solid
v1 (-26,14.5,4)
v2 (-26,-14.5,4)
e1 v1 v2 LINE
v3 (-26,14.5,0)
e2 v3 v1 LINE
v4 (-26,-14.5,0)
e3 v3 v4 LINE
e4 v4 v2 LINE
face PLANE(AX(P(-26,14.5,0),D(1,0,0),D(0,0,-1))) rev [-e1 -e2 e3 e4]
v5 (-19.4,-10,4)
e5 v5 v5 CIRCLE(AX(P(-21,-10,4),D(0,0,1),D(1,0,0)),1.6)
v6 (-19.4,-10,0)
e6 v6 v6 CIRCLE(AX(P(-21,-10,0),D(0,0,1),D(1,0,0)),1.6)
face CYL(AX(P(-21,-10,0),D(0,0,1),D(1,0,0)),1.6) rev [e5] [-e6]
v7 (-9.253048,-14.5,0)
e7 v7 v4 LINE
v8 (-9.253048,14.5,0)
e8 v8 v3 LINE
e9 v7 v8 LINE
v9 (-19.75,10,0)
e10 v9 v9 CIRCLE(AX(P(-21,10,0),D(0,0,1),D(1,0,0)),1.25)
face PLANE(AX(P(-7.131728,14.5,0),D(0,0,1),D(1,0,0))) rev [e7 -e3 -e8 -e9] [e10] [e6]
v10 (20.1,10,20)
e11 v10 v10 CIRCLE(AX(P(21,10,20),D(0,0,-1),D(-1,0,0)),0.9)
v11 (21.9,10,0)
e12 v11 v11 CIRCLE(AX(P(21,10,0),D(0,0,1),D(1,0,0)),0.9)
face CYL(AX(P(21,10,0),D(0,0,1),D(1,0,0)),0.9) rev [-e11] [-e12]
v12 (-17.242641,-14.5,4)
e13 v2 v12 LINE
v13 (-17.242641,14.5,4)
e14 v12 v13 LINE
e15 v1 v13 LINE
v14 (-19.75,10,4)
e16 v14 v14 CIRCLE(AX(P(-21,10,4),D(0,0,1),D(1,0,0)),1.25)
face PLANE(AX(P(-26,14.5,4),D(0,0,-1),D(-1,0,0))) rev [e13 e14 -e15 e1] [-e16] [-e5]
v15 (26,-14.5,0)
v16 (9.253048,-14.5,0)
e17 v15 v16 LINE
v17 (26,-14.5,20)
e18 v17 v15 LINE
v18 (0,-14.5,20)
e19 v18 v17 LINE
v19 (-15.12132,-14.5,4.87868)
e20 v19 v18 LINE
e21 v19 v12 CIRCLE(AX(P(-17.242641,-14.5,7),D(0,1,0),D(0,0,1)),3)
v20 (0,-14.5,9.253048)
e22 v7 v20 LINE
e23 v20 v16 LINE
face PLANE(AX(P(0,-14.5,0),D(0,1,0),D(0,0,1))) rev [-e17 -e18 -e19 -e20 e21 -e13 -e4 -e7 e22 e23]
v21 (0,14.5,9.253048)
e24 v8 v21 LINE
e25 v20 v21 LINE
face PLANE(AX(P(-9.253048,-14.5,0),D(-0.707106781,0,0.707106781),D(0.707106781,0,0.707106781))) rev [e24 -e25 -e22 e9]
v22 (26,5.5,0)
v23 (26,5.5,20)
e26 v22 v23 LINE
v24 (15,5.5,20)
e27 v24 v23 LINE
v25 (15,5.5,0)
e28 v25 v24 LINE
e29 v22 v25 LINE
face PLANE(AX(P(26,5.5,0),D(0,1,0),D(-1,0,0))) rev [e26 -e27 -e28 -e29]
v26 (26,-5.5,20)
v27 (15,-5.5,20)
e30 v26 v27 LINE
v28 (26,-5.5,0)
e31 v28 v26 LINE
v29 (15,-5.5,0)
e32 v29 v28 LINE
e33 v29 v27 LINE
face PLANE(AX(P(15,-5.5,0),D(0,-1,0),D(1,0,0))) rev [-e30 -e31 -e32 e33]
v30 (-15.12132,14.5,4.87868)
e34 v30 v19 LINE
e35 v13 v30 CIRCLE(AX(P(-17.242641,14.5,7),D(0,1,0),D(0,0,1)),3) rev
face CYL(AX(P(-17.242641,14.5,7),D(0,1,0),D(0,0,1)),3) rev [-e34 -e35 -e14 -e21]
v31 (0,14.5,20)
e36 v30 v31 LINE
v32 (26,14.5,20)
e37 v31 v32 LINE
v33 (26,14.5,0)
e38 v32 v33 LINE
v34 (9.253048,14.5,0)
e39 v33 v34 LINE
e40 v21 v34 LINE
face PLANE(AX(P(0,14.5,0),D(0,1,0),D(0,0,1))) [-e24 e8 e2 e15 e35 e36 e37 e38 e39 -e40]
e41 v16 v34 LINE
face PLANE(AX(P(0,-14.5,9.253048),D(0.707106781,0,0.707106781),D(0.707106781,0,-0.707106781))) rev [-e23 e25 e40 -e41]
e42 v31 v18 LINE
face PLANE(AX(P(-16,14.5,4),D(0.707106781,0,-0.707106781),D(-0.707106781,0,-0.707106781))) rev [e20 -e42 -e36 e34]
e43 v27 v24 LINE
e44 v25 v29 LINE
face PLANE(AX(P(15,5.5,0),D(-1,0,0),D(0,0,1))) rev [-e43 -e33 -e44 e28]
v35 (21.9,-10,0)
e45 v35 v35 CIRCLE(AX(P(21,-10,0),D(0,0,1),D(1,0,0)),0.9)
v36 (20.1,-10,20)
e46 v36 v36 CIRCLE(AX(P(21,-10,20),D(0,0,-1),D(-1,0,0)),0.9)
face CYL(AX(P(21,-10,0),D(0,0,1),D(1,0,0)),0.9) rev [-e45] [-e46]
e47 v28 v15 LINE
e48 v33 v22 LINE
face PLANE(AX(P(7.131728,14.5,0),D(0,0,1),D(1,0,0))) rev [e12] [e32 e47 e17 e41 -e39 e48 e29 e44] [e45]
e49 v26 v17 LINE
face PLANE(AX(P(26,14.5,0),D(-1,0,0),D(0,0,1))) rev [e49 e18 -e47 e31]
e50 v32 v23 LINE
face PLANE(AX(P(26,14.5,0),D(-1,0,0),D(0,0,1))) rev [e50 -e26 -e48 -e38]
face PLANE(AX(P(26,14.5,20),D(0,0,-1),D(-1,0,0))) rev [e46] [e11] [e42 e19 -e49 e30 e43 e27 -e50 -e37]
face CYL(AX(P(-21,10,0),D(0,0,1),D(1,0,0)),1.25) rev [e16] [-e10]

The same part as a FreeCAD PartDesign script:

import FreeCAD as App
import Part
import Sketcher
from FreeCAD import Vector
Q = App.Units.Quantity


def edges_at(feature, points):
    """Names of the edges that pass closest to the given points."""
    edges = feature.Shape.Edges
    near = lambda p: min(range(len(edges)), key=lambda i: edges[i].distToShape(Part.Vertex(*p))[0])
    return sorted({f"Edge{near(p) + 1}" for p in points})


def add_polygon(sketch, points):
    """Adds a closed chain of lines whose ends are joined by coincident constraints."""
    first, n = sketch.GeometryCount, len(points)
    for a, b in zip(points, points[1:] + points[:1]):
        sketch.addGeometry(Part.LineSegment(App.Vector(*a, 0), App.Vector(*b, 0)), False)
    for i in range(n):
        sketch.addConstraint(Sketcher.Constraint("Coincident", first + i, 2, first + (i + 1) % n, 1))

doc = App.newDocument("Part")
body = doc.addObject("PartDesign::Body", "Body")

sketch1 = body.newObject("Sketcher::SketchObject", "Sketch")
sketch1.AttachmentSupport = (doc.getObject("XZ_Plane"), [""])
sketch1.MapMode = "FlatFace"
add_polygon(sketch1, [(-7.131728, 0), (-26, 0), (-26, 4), (-16, 4), (0, 20), (26, 20), (26, 0), (7.131728, 0), (0, 7.131728)])
sketch1.addConstraint(Sketcher.Constraint("Horizontal", 0))
sketch1.addConstraint(Sketcher.Constraint("Vertical", 1))
sketch1.addConstraint(Sketcher.Constraint("Horizontal", 2))
sketch1.addConstraint(Sketcher.Constraint("Horizontal", 4))
sketch1.addConstraint(Sketcher.Constraint("Vertical", 5))
sketch1.addConstraint(Sketcher.Constraint("Horizontal", 6))
sketch1.addConstraint(Sketcher.Constraint("Symmetric", 0, 2, 5, 2, -1, 1))
sketch1.addConstraint(Sketcher.Constraint("Symmetric", 6, 2, 8, 2, -2))
sketch1.addConstraint(Sketcher.Constraint("PointOnObject", 3, 2, -2))
sketch1.addConstraint(Sketcher.Constraint("PointOnObject", 7, 2, -2))
sketch1.addConstraint(Sketcher.Constraint("Perpendicular", 3, 7))
sketch1.addConstraint(Sketcher.Constraint("Perpendicular", 7, 8))
sketch1.addConstraint(Sketcher.Constraint("DistanceX", 2, 1, 2, 2, Q("10 mm")))
sketch1.addConstraint(Sketcher.Constraint("DistanceX", 4, 1, 4, 2, Q("26 mm")))
sketch1.addConstraint(Sketcher.Constraint("DistanceY", 1, 1, 1, 2, Q("4 mm")))
sketch1.addConstraint(Sketcher.Constraint("DistanceX", 0, 2, 0, 1, Q("18.868272 mm")))
pad1 = body.newObject("PartDesign::Pad", "Pad")
pad1.Profile = sketch1
pad1.Length = 29
pad1.Midplane = True

sketch2 = body.newObject("Sketcher::SketchObject", "Sketch001")
sketch2.AttachmentSupport = (doc.getObject("XY_Plane"), [""])
sketch2.MapMode = "FlatFace"
sketch2.AttachmentOffset = App.Placement(Vector(0, 0, 20), App.Rotation())
sketch2.addGeometry(Part.Circle(Vector(21, 10, 0), Vector(0, 0, 1), 0.9), False)
sketch2.addGeometry(Part.Circle(Vector(21, -10, 0), Vector(0, 0, 1), 0.9), False)
add_polygon(sketch2, [(15, 5.5), (15, -5.5), (26, -5.5), (26, 5.5)])
sketch2.addConstraint(Sketcher.Constraint("Vertical", 2))
sketch2.addConstraint(Sketcher.Constraint("Horizontal", 3))
sketch2.addConstraint(Sketcher.Constraint("Vertical", 4))
sketch2.addConstraint(Sketcher.Constraint("Horizontal", 5))
sketch2.addConstraint(Sketcher.Constraint("Equal", 0, 1))
sketch2.addConstraint(Sketcher.Constraint("Symmetric", 0, 3, 1, 3, -1))
sketch2.addConstraint(Sketcher.Constraint("Equal", 5, 2))
sketch2.addConstraint(Sketcher.Constraint("Diameter", 0, Q("1.8 mm")))
sketch2.addConstraint(Sketcher.Constraint("DistanceX", 3, 1, 3, 2, Q("11 mm")))
sketch2.addConstraint(Sketcher.Constraint("DistanceX", -1, 1, 0, 3, Q("21 mm")))
sketch2.addConstraint(Sketcher.Constraint("DistanceY", -1, 1, 0, 3, Q("10 mm")))
sketch2.addConstraint(Sketcher.Constraint("DistanceX", -1, 1, 2, 2, Q("15 mm")))
sketch2.addConstraint(Sketcher.Constraint("DistanceY", 2, 2, -1, 1, Q("5.5 mm")))
pocket1 = body.newObject("PartDesign::Pocket", "Pocket")
pocket1.Profile = sketch2
pocket1.Type = "ThroughAll"
pocket1.Midplane = True

sketch3 = body.newObject("Sketcher::SketchObject", "Sketch002")
sketch3.AttachmentSupport = (doc.getObject("XY_Plane"), [""])
sketch3.MapMode = "FlatFace"
sketch3.AttachmentOffset = App.Placement(Vector(0, 0, 4), App.Rotation())
sketch3.addGeometry(Part.Circle(Vector(-21, 10, 0), Vector(0, 0, 1), 1.25), False)
sketch3.addGeometry(Part.Circle(Vector(-21, -10, 0), Vector(0, 0, 1), 1.6), False)
sketch3.addConstraint(Sketcher.Constraint("Symmetric", 0, 3, 1, 3, -1))
sketch3.addConstraint(Sketcher.Constraint("Diameter", 0, Q("2.5 mm")))
sketch3.addConstraint(Sketcher.Constraint("Diameter", 1, Q("3.2 mm")))
sketch3.addConstraint(Sketcher.Constraint("DistanceX", 0, 3, -1, 1, Q("21 mm")))
sketch3.addConstraint(Sketcher.Constraint("DistanceY", -1, 1, 0, 3, Q("10 mm")))
pocket2 = body.newObject("PartDesign::Pocket", "Pocket001")
pocket2.Profile = sketch3
pocket2.Type = "ThroughAll"
doc.recompute()

fillet = body.newObject("PartDesign::Fillet", "Fillet")
fillet.Base = (pocket2, edges_at(pocket2, [(-16, 0, 4)]))
fillet.Radius = 3

sketch4 = body.newObject("Sketcher::SketchObject", "Sketch003")
sketch4.AttachmentSupport = (doc.getObject("XZ_Plane"), [""])
sketch4.MapMode = "FlatFace"
add_polygon(sketch4, [(9.253048, 0), (-9.253048, 0), (0, 9.253048)])
sketch4.addConstraint(Sketcher.Constraint("Horizontal", 0))
sketch4.addConstraint(Sketcher.Constraint("Symmetric", 0, 2, 2, 2, -1, 1))
sketch4.addConstraint(Sketcher.Constraint("PointOnObject", 1, 2, -2))
sketch4.addConstraint(Sketcher.Constraint("Perpendicular", 1, 2))
sketch4.addConstraint(Sketcher.Constraint("DistanceX", 0, 2, 0, 1, Q("18.506097 mm")))
pocket3 = body.newObject("PartDesign::Pocket", "Pocket002")
pocket3.Profile = sketch4
pocket3.Type = "ThroughAll"
pocket3.Midplane = True

doc.recompute()
